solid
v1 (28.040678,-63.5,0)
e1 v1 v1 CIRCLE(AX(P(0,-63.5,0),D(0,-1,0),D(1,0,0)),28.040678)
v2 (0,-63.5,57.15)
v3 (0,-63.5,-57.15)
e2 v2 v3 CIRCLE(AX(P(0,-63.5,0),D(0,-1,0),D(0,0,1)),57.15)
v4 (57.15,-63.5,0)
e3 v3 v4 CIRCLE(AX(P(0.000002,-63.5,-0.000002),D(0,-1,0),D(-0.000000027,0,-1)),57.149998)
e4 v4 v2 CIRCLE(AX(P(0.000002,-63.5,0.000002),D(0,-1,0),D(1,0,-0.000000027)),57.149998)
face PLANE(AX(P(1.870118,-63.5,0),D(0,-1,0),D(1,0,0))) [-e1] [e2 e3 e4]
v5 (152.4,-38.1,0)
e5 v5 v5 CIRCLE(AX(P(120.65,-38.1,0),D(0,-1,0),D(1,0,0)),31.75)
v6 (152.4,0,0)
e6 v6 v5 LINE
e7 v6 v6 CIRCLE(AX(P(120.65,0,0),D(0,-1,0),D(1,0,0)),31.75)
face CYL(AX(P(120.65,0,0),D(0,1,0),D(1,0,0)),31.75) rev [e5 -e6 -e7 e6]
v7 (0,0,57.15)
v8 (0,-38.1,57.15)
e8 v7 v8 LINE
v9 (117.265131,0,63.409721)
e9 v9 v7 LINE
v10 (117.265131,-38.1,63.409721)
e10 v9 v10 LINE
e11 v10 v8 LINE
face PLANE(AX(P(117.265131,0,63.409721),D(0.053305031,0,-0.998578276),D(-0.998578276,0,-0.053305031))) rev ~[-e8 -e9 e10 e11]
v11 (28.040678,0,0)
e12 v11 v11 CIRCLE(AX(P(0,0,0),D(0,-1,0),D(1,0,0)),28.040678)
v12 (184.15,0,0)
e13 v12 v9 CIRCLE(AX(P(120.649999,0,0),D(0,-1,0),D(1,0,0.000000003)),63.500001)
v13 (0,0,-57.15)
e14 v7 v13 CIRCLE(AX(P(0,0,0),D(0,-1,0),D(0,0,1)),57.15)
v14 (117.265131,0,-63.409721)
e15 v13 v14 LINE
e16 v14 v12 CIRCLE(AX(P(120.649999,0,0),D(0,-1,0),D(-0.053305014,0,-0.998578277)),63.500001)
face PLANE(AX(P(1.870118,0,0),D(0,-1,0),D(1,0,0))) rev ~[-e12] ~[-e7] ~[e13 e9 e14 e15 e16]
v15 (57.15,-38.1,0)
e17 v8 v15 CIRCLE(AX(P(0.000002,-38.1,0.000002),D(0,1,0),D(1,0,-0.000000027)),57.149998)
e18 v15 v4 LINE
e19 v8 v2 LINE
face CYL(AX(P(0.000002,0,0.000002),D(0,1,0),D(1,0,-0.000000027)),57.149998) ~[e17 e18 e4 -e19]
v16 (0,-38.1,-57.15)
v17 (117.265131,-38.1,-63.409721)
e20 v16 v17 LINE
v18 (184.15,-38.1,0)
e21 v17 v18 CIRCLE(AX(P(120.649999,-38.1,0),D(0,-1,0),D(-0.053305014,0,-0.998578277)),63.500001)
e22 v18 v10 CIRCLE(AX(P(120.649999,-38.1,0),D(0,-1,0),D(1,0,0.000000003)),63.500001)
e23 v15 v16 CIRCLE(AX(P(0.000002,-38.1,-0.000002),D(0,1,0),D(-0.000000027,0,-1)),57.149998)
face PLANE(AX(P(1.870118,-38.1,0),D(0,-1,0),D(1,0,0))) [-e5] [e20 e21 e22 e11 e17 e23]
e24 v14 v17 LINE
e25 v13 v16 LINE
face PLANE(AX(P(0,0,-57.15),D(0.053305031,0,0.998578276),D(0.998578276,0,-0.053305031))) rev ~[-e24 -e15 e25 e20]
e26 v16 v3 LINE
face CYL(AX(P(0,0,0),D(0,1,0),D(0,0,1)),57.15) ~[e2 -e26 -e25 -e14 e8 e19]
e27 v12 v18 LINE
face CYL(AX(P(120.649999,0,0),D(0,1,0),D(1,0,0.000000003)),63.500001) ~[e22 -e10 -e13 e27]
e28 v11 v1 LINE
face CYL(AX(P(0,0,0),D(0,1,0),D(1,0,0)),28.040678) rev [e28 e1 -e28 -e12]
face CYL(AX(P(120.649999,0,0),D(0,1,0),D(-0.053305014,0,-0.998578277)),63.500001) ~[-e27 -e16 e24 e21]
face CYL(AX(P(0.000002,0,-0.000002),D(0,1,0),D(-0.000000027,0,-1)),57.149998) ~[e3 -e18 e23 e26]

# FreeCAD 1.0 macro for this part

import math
import FreeCAD as App
import Part
import Sketcher

V = App.Vector
Q = App.Units.Quantity

doc = App.newDocument("Part")
body = doc.addObject("PartDesign::Body", "Body")

sketch1 = doc.addObject("Sketcher::SketchObject", "Sketch")
body.addObject(sketch1)
sketch1.AttachmentSupport = (doc.XZ_Plane, [""])
sketch1.MapMode = "FlatFace"
sketch1.addGeometry([
    Part.ArcOfCircle(Part.Circle(V(0, 0, 0), V(0, 0, 1), 57.15), math.radians(90), math.radians(270)),
    Part.LineSegment(V(0, -57.15, 0), V(117.265131, -63.409721, 0)),
    Part.ArcOfCircle(Part.Circle(V(120.649999, 0, 0), V(0, 0, 1), 63.500001), math.radians(-93.055601), math.radians(0)),
    Part.ArcOfCircle(Part.Circle(V(120.649999, 0, 0), V(0, 0, 1), 63.500001), math.radians(0), math.radians(93.055601)),
    Part.LineSegment(V(117.265131, 63.409721, 0), V(0, 57.15, 0)),
    Part.Circle(V(0, 0, 0), V(0, 0, 1), 28.040678),
    Part.Circle(V(120.65, 0, 0), V(0, 0, 1), 31.75),
], False)
sketch1.addConstraint([
    Sketcher.Constraint("Coincident", 0, 2, 1, 1),
    Sketcher.Constraint("Tangent", 1, 2, 2, 1),
    Sketcher.Constraint("Tangent", 2, 2, 3, 1),
    Sketcher.Constraint("Tangent", 3, 2, 4, 1),
    Sketcher.Constraint("Coincident", 4, 2, 0, 1),
    Sketcher.Constraint("Coincident", 0, 3, -1, 1),
    Sketcher.Constraint("Coincident", 5, 3, -1, 1),
    Sketcher.Constraint("Coincident", 6, 3, 2, 3),
    Sketcher.Constraint("Equal", 2, 3),
    Sketcher.Constraint("Symmetric", 1, 2, 3, 2, -1),
    Sketcher.Constraint("PointOnObject", 0, 2, -2),
    Sketcher.Constraint("PointOnObject", 2, 2, -1),
    Sketcher.Constraint("Diameter", 6, Q("2.5 in")),
    Sketcher.Constraint("Radius", 2, Q("2.5 in")),
    Sketcher.Constraint("Radius", 0, Q("2.25 in")),
    Sketcher.Constraint("DistanceX", -1, 1, 2, 3, Q("4.75 in")),
    Sketcher.Constraint("Diameter", 5, Q("56.081356 mm")),
])
pad1 = doc.addObject("PartDesign::Pad", "Pad")
body.addObject(pad1)
pad1.Profile = sketch1
pad1.Length = Q("1.5 in")

sketch2 = doc.addObject("Sketcher::SketchObject", "Sketch001")
body.addObject(sketch2)
sketch2.AttachmentSupport = (doc.XZ_Plane, [""])
sketch2.MapMode = "FlatFace"
sketch2.addGeometry([
    Part.ArcOfCircle(Part.Circle(V(0.000002, -0.000002, 0), V(0, 0, 1), 57.149998), math.radians(-90.000002), math.radians(0.000002)),
    Part.ArcOfCircle(Part.Circle(V(0.000002, 0.000002, 0), V(0, 0, 1), 57.149998), math.radians(-0.000002), math.radians(90.000002)),
    Part.ArcOfCircle(Part.Circle(V(0, 0, 0), V(0, 0, 1), 57.15), math.radians(90), math.radians(270)),
    Part.Circle(V(0, 0, 0), V(0, 0, 1), 28.040678),
], False)
sketch2.addConstraint([
    Sketcher.Constraint("Tangent", 0, 2, 1, 1),
    Sketcher.Constraint("Tangent", 1, 2, 2, 1),
    Sketcher.Constraint("Tangent", 2, 2, 0, 1),
    Sketcher.Constraint("Coincident", 0, 3, -1, 1),
    Sketcher.Constraint("Coincident", 3, 3, -1, 1),
    Sketcher.Constraint("PointOnObject", 0, 2, -1),
    Sketcher.Constraint("PointOnObject", 1, 2, -2),
    Sketcher.Constraint("PointOnObject", 2, 2, -2),
    Sketcher.Constraint("Radius", 0, Q("2.2499999 in")),
    Sketcher.Constraint("Diameter", 3, Q("56.081356 mm")),
])
pad2 = doc.addObject("PartDesign::Pad", "Pad001")
body.addObject(pad2)
pad2.Profile = sketch2
pad2.Length = Q("2.5 in")

doc.recompute()
